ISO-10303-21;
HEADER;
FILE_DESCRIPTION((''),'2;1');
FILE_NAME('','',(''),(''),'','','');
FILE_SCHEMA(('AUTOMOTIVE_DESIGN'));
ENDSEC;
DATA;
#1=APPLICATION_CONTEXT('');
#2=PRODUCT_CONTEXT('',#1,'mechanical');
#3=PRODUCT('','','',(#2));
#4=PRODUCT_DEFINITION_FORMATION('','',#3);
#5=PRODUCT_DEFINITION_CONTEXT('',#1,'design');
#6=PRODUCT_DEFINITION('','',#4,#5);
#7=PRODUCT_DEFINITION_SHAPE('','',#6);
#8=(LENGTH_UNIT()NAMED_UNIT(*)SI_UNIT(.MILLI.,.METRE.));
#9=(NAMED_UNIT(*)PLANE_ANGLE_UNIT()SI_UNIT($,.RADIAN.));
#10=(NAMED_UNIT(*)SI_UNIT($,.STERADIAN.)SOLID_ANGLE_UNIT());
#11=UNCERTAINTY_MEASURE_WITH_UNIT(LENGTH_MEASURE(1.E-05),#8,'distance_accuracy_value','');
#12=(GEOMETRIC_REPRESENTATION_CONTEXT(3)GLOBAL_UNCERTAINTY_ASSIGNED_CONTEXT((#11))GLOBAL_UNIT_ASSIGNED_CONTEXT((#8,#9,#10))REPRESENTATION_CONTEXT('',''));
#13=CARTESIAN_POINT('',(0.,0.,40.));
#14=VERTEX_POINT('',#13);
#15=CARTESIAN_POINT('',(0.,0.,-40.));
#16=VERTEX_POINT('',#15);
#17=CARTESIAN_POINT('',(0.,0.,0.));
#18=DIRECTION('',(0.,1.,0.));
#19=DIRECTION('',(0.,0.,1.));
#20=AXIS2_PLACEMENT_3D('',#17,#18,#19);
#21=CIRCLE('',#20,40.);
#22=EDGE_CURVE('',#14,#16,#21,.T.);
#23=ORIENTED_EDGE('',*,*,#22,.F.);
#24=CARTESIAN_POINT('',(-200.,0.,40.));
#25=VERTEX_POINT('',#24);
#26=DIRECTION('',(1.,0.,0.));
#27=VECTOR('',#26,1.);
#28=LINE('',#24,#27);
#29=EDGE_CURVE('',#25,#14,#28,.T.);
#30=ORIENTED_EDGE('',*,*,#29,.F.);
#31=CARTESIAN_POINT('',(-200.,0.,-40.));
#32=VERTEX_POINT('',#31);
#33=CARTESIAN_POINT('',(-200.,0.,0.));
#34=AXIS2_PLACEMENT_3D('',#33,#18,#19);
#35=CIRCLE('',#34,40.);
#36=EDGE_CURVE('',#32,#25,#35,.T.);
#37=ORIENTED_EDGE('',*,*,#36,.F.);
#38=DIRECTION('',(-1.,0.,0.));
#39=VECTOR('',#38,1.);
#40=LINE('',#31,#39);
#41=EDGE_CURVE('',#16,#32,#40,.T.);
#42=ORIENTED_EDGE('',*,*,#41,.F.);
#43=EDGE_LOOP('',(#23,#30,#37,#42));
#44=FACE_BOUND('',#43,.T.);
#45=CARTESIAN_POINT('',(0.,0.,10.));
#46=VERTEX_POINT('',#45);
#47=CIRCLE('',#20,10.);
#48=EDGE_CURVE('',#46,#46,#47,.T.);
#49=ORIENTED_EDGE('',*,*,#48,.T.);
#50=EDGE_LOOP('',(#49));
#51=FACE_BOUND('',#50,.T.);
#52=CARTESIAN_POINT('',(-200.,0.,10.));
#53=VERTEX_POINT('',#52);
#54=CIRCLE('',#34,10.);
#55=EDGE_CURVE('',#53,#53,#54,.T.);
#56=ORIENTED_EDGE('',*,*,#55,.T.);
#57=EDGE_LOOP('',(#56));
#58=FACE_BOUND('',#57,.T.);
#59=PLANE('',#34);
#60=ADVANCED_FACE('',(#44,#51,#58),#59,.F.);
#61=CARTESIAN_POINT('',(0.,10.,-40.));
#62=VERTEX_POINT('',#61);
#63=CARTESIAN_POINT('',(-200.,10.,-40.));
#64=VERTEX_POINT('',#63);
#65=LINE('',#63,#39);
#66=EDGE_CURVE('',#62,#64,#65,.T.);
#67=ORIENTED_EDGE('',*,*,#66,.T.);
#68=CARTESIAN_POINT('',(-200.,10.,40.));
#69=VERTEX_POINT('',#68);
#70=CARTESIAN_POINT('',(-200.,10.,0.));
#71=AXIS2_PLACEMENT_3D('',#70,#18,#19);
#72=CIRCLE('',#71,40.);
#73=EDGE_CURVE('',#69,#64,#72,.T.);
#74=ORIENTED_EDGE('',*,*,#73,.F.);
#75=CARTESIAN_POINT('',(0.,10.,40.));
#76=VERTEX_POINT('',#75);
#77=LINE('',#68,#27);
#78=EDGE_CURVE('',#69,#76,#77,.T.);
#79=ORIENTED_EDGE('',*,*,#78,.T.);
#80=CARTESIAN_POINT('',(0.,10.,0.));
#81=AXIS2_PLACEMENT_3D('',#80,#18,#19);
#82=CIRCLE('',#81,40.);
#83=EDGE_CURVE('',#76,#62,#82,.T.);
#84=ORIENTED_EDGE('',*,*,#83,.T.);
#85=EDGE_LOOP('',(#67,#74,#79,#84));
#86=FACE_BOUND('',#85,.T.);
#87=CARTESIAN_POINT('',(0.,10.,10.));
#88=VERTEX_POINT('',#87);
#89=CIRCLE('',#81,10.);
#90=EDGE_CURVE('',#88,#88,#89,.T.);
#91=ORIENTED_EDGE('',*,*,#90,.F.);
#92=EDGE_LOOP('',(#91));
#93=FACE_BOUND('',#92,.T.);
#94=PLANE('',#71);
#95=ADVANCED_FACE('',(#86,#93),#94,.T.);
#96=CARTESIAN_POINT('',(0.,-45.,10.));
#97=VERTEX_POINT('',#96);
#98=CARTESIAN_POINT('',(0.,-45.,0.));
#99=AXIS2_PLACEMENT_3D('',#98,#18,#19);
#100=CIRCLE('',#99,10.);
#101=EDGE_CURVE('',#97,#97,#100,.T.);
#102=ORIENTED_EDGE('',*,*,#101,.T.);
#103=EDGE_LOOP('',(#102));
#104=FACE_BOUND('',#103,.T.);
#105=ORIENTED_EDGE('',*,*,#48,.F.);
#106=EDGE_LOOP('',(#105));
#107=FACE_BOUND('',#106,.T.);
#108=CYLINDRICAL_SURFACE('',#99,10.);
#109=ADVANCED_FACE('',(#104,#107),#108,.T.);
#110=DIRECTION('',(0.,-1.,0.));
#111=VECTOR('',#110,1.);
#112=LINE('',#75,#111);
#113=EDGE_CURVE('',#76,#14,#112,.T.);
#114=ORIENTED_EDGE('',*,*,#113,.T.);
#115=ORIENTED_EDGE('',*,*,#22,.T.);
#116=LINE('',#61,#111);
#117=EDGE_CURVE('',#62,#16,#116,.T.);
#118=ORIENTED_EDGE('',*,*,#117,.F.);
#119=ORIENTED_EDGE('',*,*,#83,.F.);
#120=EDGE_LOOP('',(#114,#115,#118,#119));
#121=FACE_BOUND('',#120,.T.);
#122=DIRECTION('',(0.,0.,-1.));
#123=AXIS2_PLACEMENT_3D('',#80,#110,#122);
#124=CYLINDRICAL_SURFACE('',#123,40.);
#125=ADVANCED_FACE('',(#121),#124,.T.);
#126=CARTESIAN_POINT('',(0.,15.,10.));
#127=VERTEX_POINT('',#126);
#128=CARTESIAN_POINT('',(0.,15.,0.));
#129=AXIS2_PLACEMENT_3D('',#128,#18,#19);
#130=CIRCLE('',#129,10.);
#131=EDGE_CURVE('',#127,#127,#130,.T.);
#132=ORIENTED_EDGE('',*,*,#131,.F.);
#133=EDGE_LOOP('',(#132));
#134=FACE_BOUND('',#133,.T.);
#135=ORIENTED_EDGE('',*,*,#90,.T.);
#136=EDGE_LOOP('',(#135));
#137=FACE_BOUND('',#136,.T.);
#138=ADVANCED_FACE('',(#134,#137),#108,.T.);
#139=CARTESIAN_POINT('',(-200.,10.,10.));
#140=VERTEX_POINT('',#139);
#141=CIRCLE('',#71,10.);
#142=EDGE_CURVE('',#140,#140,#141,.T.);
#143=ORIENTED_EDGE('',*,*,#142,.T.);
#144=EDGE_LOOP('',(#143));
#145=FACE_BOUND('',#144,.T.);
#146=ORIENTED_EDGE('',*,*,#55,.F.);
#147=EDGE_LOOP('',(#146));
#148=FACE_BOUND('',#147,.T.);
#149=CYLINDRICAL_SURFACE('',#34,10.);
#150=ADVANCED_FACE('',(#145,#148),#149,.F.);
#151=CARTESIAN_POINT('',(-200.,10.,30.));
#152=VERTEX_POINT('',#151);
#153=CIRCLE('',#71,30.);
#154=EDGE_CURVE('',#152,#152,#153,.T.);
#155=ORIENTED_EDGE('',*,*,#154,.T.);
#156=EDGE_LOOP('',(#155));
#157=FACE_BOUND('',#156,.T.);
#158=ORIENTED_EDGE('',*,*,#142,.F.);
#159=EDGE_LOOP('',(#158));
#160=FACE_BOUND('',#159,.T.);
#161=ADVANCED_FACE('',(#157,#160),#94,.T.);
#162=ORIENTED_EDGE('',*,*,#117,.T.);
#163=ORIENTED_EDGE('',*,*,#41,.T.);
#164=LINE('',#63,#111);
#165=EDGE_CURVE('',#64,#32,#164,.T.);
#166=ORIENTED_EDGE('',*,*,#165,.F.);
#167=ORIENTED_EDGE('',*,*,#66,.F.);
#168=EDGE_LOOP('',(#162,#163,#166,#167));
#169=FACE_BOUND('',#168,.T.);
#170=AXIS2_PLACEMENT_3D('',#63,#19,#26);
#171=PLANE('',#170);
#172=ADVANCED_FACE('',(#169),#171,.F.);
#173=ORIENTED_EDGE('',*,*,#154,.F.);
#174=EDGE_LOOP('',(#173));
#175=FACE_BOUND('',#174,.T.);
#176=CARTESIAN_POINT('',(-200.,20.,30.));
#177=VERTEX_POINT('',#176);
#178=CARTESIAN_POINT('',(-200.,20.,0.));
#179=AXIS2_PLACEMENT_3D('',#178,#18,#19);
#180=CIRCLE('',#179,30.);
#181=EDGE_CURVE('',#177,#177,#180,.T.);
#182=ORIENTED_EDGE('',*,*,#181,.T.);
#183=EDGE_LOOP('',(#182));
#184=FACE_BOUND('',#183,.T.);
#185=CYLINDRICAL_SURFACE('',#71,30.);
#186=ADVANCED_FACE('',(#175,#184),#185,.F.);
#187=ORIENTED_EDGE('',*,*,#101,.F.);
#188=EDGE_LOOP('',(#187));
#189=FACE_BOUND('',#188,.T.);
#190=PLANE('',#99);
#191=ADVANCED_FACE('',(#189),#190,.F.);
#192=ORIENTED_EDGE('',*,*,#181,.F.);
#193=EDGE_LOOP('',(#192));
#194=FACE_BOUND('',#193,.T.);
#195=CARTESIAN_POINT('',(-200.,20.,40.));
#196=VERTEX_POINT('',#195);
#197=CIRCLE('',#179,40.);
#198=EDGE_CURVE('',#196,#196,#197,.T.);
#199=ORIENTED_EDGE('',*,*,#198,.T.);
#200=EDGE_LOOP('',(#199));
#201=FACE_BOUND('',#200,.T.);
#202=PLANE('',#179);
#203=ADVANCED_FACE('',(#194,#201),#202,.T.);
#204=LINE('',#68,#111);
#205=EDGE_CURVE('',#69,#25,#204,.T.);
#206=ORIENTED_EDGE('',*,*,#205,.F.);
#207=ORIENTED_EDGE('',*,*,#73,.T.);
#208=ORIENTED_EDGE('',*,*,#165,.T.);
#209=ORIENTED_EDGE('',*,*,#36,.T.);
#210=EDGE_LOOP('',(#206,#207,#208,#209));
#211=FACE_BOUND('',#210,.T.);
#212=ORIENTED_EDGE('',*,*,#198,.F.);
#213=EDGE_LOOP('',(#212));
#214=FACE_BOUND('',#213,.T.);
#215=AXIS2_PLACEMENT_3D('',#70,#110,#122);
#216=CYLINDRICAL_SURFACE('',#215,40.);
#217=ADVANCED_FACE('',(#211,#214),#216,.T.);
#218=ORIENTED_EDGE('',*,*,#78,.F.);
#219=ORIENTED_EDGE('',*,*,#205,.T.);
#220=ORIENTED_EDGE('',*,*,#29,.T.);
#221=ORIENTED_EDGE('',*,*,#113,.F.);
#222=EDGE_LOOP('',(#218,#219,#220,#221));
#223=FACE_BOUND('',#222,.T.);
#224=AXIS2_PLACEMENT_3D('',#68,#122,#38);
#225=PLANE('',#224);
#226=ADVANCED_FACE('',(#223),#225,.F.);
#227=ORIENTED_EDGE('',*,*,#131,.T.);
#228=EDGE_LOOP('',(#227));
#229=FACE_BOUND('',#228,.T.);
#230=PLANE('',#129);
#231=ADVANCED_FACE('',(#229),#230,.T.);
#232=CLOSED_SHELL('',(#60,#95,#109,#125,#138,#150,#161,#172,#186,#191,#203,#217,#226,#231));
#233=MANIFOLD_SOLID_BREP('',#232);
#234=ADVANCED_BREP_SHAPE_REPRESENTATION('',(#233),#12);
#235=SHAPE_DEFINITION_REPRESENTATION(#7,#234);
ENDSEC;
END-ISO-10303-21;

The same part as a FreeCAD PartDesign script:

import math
import FreeCAD as App
import Part
import Sketcher
from FreeCAD import Vector

doc = App.newDocument("Part")
body = doc.addObject("PartDesign::Body", "Body")

# Sketch on XZ plane
sketch1 = doc.addObject("Sketcher::SketchObject", "Sketch")
body.addObject(sketch1)
sketch1.AttachmentSupport = (doc.XZ_Plane, [""])
sketch1.MapMode = "FlatFace"
sketch1.addGeometry(Part.LineSegment(Vector(0, -40, 0), Vector(-200, -40, 0)), False)
sketch1.addGeometry(Part.ArcOfCircle(Part.Circle(Vector(-200, 0, 0), Vector(0, 0, 1), 40), math.radians(90), math.radians(270)), False)
sketch1.addGeometry(Part.LineSegment(Vector(-200, 40, 0), Vector(0, 40, 0)), False)
sketch1.addGeometry(Part.ArcOfCircle(Part.Circle(Vector(0, 0, 0), Vector(0, 0, 1), 40), math.radians(-90), math.radians(90)), False)
sketch1.addConstraint(Sketcher.Constraint("Tangent", 0, 2, 1, 2))
sketch1.addConstraint(Sketcher.Constraint("Tangent", 1, 1, 2, 1))
sketch1.addConstraint(Sketcher.Constraint("Tangent", 2, 2, 3, 2))
sketch1.addConstraint(Sketcher.Constraint("Tangent", 3, 1, 0, 1))
sketch1.addConstraint(Sketcher.Constraint("Horizontal", 0))
sketch1.addConstraint(Sketcher.Constraint("Horizontal", 2))
sketch1.addConstraint(Sketcher.Constraint("Coincident", 3, 3, -1, 1))
sketch1.addConstraint(Sketcher.Constraint("Radius", 1, 40.0))
sketch1.addConstraint(Sketcher.Constraint("DistanceX", 0, 2, 0, 1, 200.0))
pad1 = doc.addObject("PartDesign::Pad", "Pad")
body.addObject(pad1)
pad1.Profile = sketch1
pad1.Length = 10
pad1.Reversed = True

# Sketch on XZ plane
sketch2 = doc.addObject("Sketcher::SketchObject", "Sketch001")
body.addObject(sketch2)
sketch2.AttachmentSupport = (doc.XZ_Plane, [""])
sketch2.MapMode = "FlatFace"
sketch2.AttachmentOffset = App.Placement(Vector(0, 0, -10), App.Rotation())
sketch2.addGeometry(Part.Circle(Vector(-200, 0, 0), Vector(0, 0, 1), 40), False)
sketch2.addConstraint(Sketcher.Constraint("PointOnObject", 0, 3, -1))
sketch2.addConstraint(Sketcher.Constraint("Diameter", 0, 80.0))
sketch2.addConstraint(Sketcher.Constraint("DistanceX", 0, 3, -1, 1, 200.0))
pad2 = doc.addObject("PartDesign::Pad", "Pad001")
body.addObject(pad2)
pad2.Profile = sketch2
pad2.Length = 10
pad2.Reversed = True

# Sketch on XZ plane
sketch3 = doc.addObject("Sketcher::SketchObject", "Sketch002")
body.addObject(sketch3)
sketch3.AttachmentSupport = (doc.XZ_Plane, [""])
sketch3.MapMode = "FlatFace"
sketch3.AttachmentOffset = App.Placement(Vector(0, 0, -20), App.Rotation())
sketch3.addGeometry(Part.Circle(Vector(-200, 0, 0), Vector(0, 0, 1), 30), False)
sketch3.addConstraint(Sketcher.Constraint("PointOnObject", 0, 3, -1))
sketch3.addConstraint(Sketcher.Constraint("Diameter", 0, 60.0))
sketch3.addConstraint(Sketcher.Constraint("DistanceX", 0, 3, -1, 1, 200.0))
pocket1 = doc.addObject("PartDesign::Pocket", "Pocket")
body.addObject(pocket1)
pocket1.Profile = sketch3
pocket1.Length = 10
pocket1.Reversed = True

# Sketch on XZ plane
sketch4 = doc.addObject("Sketcher::SketchObject", "Sketch003")
body.addObject(sketch4)
sketch4.AttachmentSupport = (doc.XZ_Plane, [""])
sketch4.MapMode = "FlatFace"
sketch4.AttachmentOffset = App.Placement(Vector(0, 0, -10), App.Rotation())
sketch4.addGeometry(Part.Circle(Vector(-200, 0, 0), Vector(0, 0, 1), 10), False)
sketch4.addConstraint(Sketcher.Constraint("PointOnObject", 0, 3, -1))
sketch4.addConstraint(Sketcher.Constraint("Diameter", 0, 20.0))
sketch4.addConstraint(Sketcher.Constraint("DistanceX", 0, 3, -1, 1, 200.0))
pocket2 = doc.addObject("PartDesign::Pocket", "Pocket001")
body.addObject(pocket2)
pocket2.Profile = sketch4
pocket2.Length = 10
pocket2.Reversed = True

# Sketch on XZ plane
sketch5 = doc.addObject("Sketcher::SketchObject", "Sketch004")
body.addObject(sketch5)
sketch5.AttachmentSupport = (doc.XZ_Plane, [""])
sketch5.MapMode = "FlatFace"
sketch5.AttachmentOffset = App.Placement(Vector(0, 0, -10), App.Rotation())
sketch5.addGeometry(Part.Circle(Vector(0, 0, 0), Vector(0, 0, 1), 10), False)
sketch5.addConstraint(Sketcher.Constraint("Coincident", 0, 3, -1, 1))
sketch5.addConstraint(Sketcher.Constraint("Diameter", 0, 20.0))
pad3 = doc.addObject("PartDesign::Pad", "Pad002")
body.addObject(pad3)
pad3.Profile = sketch5
pad3.Type = "TwoLengths"
pad3.Length = 5
pad3.Length2 = 55
pad3.Reversed = True

doc.recompute()
